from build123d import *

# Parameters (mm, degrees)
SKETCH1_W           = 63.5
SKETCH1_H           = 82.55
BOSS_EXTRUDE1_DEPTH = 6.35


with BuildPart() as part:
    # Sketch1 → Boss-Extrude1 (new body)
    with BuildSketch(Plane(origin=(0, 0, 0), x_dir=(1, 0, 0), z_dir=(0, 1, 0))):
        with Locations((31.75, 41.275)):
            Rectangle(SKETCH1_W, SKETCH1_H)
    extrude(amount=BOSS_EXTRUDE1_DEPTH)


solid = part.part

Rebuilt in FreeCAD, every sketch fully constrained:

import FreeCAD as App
import Part
import Sketcher
Q = App.Units.Quantity

doc = App.newDocument("Part")
params = doc.addObject("Spreadsheet::Sheet", "Params")
for row, (alias, value) in enumerate([
    ("sketch1_width", "2.5 in"),
    ("sketch1_height", "3.25 in"),
    ("pad1_length", "0.25 in"),
], start=1):
    params.set(f"A{row}", alias)
    params.set(f"B{row}", "=" + value)
    params.setAlias(f"B{row}", alias)

body = doc.addObject("PartDesign::Body", "Body")

sketch1 = doc.addObject("Sketcher::SketchObject", "Sketch")
body.addObject(sketch1)
sketch1.AttachmentSupport = (doc.XZ_Plane, [""])
sketch1.MapMode = "FlatFace"
sketch1.addGeometry([
    Part.LineSegment(App.Vector(0, -82.55, 0), App.Vector(0, 0, 0)),
    Part.LineSegment(App.Vector(0, 0, 0), App.Vector(63.5, 0, 0)),
    Part.LineSegment(App.Vector(63.5, 0, 0), App.Vector(63.5, -82.55, 0)),
    Part.LineSegment(App.Vector(63.5, -82.55, 0), App.Vector(0, -82.55, 0)),
], False)
sketch1.addConstraint([
    Sketcher.Constraint("Coincident", 0, 2, 1, 1),
    Sketcher.Constraint("Coincident", 1, 2, 2, 1),
    Sketcher.Constraint("Coincident", 2, 2, 3, 1),
    Sketcher.Constraint("Coincident", 3, 2, 0, 1),
    Sketcher.Constraint("Vertical", 0),
    Sketcher.Constraint("Horizontal", 1),
    Sketcher.Constraint("Vertical", 2),
    Sketcher.Constraint("Horizontal", 3),
    Sketcher.Constraint("Coincident", 0, 2, -1, 1),
    Sketcher.Constraint("DistanceX", 1, 1, 1, 2, Q("2.5 in")),
    Sketcher.Constraint("DistanceY", 0, 1, 0, 2, Q("3.25 in")),
])
sketch1.setExpression("Constraints[9]", "Params.sketch1_width")
sketch1.setExpression("Constraints[10]", "Params.sketch1_height")
pad1 = doc.addObject("PartDesign::Pad", "Pad")
body.addObject(pad1)
pad1.Profile = sketch1
pad1.setExpression("Length", "Params.pad1_length")
pad1.Reversed = True

doc.recompute()
